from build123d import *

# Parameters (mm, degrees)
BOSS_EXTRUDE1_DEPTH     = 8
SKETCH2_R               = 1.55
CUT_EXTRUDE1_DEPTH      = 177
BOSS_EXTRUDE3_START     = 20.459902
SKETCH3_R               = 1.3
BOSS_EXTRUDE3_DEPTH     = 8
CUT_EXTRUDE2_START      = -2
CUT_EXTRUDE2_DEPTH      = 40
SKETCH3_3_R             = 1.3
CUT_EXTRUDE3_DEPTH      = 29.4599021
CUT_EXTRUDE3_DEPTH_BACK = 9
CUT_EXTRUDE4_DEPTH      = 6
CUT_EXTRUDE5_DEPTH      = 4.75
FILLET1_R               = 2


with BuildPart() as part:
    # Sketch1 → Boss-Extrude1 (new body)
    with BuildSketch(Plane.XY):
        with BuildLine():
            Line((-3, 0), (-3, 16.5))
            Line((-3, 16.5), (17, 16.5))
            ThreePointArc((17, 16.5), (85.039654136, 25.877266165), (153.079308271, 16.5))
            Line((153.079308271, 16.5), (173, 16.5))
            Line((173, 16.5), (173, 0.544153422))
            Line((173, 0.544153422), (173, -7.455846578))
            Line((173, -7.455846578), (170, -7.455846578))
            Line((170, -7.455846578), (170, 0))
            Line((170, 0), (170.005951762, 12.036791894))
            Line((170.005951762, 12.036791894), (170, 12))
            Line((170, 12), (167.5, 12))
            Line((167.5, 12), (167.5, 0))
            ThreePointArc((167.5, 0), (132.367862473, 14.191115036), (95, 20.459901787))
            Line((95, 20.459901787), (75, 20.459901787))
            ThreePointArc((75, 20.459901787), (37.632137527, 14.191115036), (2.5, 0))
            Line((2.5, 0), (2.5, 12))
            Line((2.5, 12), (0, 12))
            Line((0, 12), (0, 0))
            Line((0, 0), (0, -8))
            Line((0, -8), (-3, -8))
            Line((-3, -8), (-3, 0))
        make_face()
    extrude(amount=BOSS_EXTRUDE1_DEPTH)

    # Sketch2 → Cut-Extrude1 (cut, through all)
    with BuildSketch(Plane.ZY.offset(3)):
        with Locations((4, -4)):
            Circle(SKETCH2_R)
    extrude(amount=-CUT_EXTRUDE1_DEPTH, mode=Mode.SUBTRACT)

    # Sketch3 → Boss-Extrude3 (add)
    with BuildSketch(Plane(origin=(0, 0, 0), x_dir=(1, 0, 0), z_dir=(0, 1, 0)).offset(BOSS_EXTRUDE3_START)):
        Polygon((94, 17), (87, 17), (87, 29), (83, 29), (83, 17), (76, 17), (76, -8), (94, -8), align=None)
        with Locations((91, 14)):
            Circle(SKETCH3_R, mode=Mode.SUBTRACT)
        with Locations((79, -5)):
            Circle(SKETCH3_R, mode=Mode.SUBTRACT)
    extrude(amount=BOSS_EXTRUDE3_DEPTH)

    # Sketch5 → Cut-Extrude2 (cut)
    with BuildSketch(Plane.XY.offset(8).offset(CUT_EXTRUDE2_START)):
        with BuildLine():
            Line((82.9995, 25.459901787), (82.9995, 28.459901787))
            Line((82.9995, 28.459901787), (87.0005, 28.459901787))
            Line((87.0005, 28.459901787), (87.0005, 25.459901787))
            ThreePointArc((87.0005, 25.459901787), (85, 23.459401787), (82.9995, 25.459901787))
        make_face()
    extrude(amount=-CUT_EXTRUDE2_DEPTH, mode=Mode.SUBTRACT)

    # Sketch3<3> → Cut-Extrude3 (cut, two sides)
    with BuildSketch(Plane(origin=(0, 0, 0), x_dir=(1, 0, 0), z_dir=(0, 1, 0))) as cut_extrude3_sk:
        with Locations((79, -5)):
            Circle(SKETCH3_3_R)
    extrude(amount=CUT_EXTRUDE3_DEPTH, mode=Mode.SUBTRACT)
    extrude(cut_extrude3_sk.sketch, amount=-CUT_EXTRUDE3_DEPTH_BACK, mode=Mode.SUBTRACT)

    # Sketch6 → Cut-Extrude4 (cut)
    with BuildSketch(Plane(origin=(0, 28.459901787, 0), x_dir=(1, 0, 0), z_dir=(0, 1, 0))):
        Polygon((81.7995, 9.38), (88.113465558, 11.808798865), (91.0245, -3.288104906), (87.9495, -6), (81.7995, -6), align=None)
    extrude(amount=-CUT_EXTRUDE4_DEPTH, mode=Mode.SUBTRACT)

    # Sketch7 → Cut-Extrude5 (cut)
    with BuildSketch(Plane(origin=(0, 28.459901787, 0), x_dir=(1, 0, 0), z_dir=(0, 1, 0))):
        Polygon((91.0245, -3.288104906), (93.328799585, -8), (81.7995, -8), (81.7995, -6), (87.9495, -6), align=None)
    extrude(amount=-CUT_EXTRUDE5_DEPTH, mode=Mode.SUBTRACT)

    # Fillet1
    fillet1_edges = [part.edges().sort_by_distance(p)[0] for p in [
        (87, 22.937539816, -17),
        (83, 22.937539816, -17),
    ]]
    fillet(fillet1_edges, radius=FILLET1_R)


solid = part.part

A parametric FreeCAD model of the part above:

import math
import FreeCAD as App
import Part
import Sketcher

V = App.Vector
Q = App.Units.Quantity


def edges_at(feature, points):
    """Names of the edges that pass closest to the given points."""
    edges = feature.Shape.Edges
    near = lambda p: min(range(len(edges)), key=lambda i: edges[i].distToShape(Part.Vertex(*p))[0])
    return sorted({f"Edge{near(p) + 1}" for p in points})


def add_polygon(sketch, points):
    """Adds a closed chain of lines whose ends are joined by coincident constraints."""
    first, n = sketch.GeometryCount, len(points)
    for a, b in zip(points, points[1:] + points[:1]):
        sketch.addGeometry(Part.LineSegment(App.Vector(*a, 0), App.Vector(*b, 0)), False)
    for i in range(n):
        sketch.addConstraint(Sketcher.Constraint("Coincident", first + i, 2, first + (i + 1) % n, 1))

doc = App.newDocument("Part")
params = doc.addObject("Spreadsheet::Sheet", "Params")
for row, (alias, value) in enumerate([
    ("sketch1_width", "20 mm"),
    ("sketch1_width2", "3 mm"),
    ("sketch1_height", "12 mm"),
    ("sketch1_width3", "2.5 mm"),
    ("sketch1_height2", "24.5 mm"),
    ("pad1_length", "8 mm"),
    ("sketch2_diameter", "3.1 mm"),
    ("sketch3_diameter", "2.6 mm"),
    ("sketch3_width", "7 mm"),
    ("sketch3_width2", "4 mm"),
    ("sketch3_height", "12 mm"),
    ("sketch3_height2", "25 mm"),
    ("pad2_length", "8 mm"),
    ("sketch4_height", "3 mm"),
    ("pocket2_length", "40 mm"),
    ("sketch5_diameter", "2.6 mm"),
    ("sketch6_length", "4.1 mm"),
    ("sketch6_width", "6.15 mm"),
    ("sketch6_height", "15.38 mm"),
    ("pocket4_length", "6 mm"),
    ("sketch7_height", "2 mm"),
    ("sketch7_length", "4.1 mm"),
    ("sketch7_width", "6.15 mm"),
    ("pocket5_length", "4.75 mm"),
    ("fillet_radius", "2 mm"),
], start=1):
    params.set(f"A{row}", alias)
    params.set(f"B{row}", "=" + value)
    params.setAlias(f"B{row}", alias)

body = doc.addObject("PartDesign::Body", "Body")

# Sketch on XY plane
sketch1 = body.newObject("Sketcher::SketchObject", "Sketch")
sketch1.AttachmentSupport = (doc.getObject("XY_Plane"), [""])
sketch1.MapMode = "FlatFace"
sketch1.addGeometry([
    Part.LineSegment(V(17, 16.5, 0), V(-3, 16.5, 0)),  # 0
    Part.LineSegment(V(-3, 16.5, 0), V(-3, -8, 0)),  # 1
    Part.LineSegment(V(-3, -8, 0), V(0, -8, 0)),  # 2
    Part.LineSegment(V(0, -8, 0), V(0, 12, 0)),  # 3
    Part.LineSegment(V(0, 12, 0), V(2.5, 12, 0)),  # 4
    Part.LineSegment(V(2.5, 12, 0), V(2.5, 0, 0)),  # 5
    Part.ArcOfCircle(Part.Circle(V(85, -153.658, 0), V(0, 0, 1), 174.405), math.radians(93), math.radians(118)),  # 6
    Part.LineSegment(V(75, 20.46, 0), V(95, 20.46, 0)),  # 7
    Part.ArcOfCircle(Part.Circle(V(85, -153.658, 0), V(0, 0, 1), 174.405), math.radians(62), math.radians(87)),  # 8
    Part.LineSegment(V(167.5, 0, 0), V(167.5, 12, 0)),  # 9
    Part.LineSegment(V(167.5, 12, 0), V(170, 12, 0)),  # 10
    Part.LineSegment(V(170, 12, 0), V(170.006, 12.037, 0)),  # 11
    Part.LineSegment(V(170.006, 12.037, 0), V(170, 0, 0)),  # 12
    Part.LineSegment(V(170, 0, 0), V(170, -7.456, 0)),  # 13
    Part.LineSegment(V(170, -7.456, 0), V(173, -7.456, 0)),  # 14
    Part.LineSegment(V(173, -7.456, 0), V(173, 16.5, 0)),  # 15
    Part.LineSegment(V(173, 16.5, 0), V(153.079, 16.5, 0)),  # 16
    Part.ArcOfCircle(Part.Circle(V(85.04, -225.653, 0), V(0, 0, 1), 251.53), math.radians(74), math.radians(106)),  # 17
], False)
sketch1.addConstraint([
    Sketcher.Constraint("Coincident", 0, 2, 1, 1),
    Sketcher.Constraint("Coincident", 1, 2, 2, 1),
    Sketcher.Constraint("Coincident", 2, 2, 3, 1),
    Sketcher.Constraint("Coincident", 3, 2, 4, 1),
    Sketcher.Constraint("Coincident", 4, 2, 5, 1),
    Sketcher.Constraint("Coincident", 5, 2, 6, 2),
    Sketcher.Constraint("Coincident", 6, 1, 7, 1),
    Sketcher.Constraint("Coincident", 7, 2, 8, 2),
    Sketcher.Constraint("Coincident", 8, 1, 9, 1),
    Sketcher.Constraint("Coincident", 9, 2, 10, 1),
    Sketcher.Constraint("Coincident", 10, 2, 11, 1),
    Sketcher.Constraint("Coincident", 11, 2, 12, 1),
    Sketcher.Constraint("Coincident", 12, 2, 13, 1),
    Sketcher.Constraint("Coincident", 13, 2, 14, 1),
    Sketcher.Constraint("Coincident", 14, 2, 15, 1),
    Sketcher.Constraint("Coincident", 15, 2, 16, 1),
    Sketcher.Constraint("Coincident", 16, 2, 17, 1),
    Sketcher.Constraint("Coincident", 17, 2, 0, 1),
    Sketcher.Constraint("Horizontal", 0),
    Sketcher.Constraint("Vertical", 1),
    Sketcher.Constraint("Horizontal", 2),
    Sketcher.Constraint("Vertical", 3),
    Sketcher.Constraint("Horizontal", 4),
    Sketcher.Constraint("Vertical", 5),
    Sketcher.Constraint("Horizontal", 7),
    Sketcher.Constraint("Vertical", 9),
    Sketcher.Constraint("Horizontal", 10),
    Sketcher.Constraint("Vertical", 13),
    Sketcher.Constraint("Horizontal", 14),
    Sketcher.Constraint("Vertical", 15),
    Sketcher.Constraint("Horizontal", 16),
    Sketcher.Constraint("Coincident", 8, 3, 6, 3),
    Sketcher.Constraint("Equal", 6, 8),
    Sketcher.Constraint("PointOnObject", 2, 2, -2),
    Sketcher.Constraint("PointOnObject", 5, 2, -1),
    Sketcher.Constraint("PointOnObject", 8, 1, -1),
    Sketcher.Constraint("PointOnObject", 12, 2, -1),
    Sketcher.Constraint("Horizontal", 4, 2, 9, 2),
    Sketcher.Constraint("Horizontal", 0, 2, 15, 2),
    Sketcher.Constraint("Vertical", 10, 2, 12, 2),
    Sketcher.Constraint("Equal", 0, 7),
    Sketcher.Constraint("Equal", 4, 10),
    Sketcher.Constraint("Equal", 2, 14),
    Sketcher.Constraint("Equal", 7, 3),
    Sketcher.Constraint("DistanceX", 0, 2, 0, 1, Q("20 mm")),
    Sketcher.Constraint("DistanceX", 2, 1, 2, 2, Q("3 mm")),
    Sketcher.Constraint("DistanceY", 5, 2, 5, 1, Q("12 mm")),
    Sketcher.Constraint("DistanceX", 4, 1, 4, 2, Q("2.5 mm")),
    Sketcher.Constraint("DistanceY", 1, 2, 1, 1, Q("24.5 mm")),
    Sketcher.Constraint("DistanceX", -1, 1, 6, 3, Q("85 mm")),
    Sketcher.Constraint("Radius", 6, Q("174.404516 mm")),
    Sketcher.Constraint("Radius", 17, Q("251.530007 mm")),
    Sketcher.Constraint("DistanceX", 16, 2, 16, 1, Q("19.920692 mm")),
    Sketcher.Constraint("Distance", 11, Q("0.03727 mm")),
    Sketcher.Constraint("DistanceY", 13, 2, 13, 1, Q("7.455847 mm")),
    Sketcher.Constraint("DistanceX", -1, 1, 11, 2, Q("170.005952 mm")),
])
sketch1.setExpression("Constraints[44]", "Params.sketch1_width")
sketch1.setExpression("Constraints[45]", "Params.sketch1_width2")
sketch1.setExpression("Constraints[46]", "Params.sketch1_height")
sketch1.setExpression("Constraints[47]", "Params.sketch1_width3")
sketch1.setExpression("Constraints[48]", "Params.sketch1_height2")
pad1 = body.newObject("PartDesign::Pad", "Pad")
pad1.Profile = sketch1
pad1.setExpression("Length", "Params.pad1_length")

# Sketch on YZ plane
sketch2 = body.newObject("Sketcher::SketchObject", "Sketch001")
sketch2.AttachmentSupport = (doc.getObject("YZ_Plane"), [""])
sketch2.MapMode = "FlatFace"
sketch2.AttachmentOffset = App.Placement(V(0, 0, -3), App.Rotation())
sketch2.addGeometry(Part.Circle(V(-4, 4, 0), V(0, 0, 1), 1.6), False)
sketch2.addConstraint([
    Sketcher.Constraint("Diameter", 0, Q("3.1 mm")),
    Sketcher.Constraint("DistanceX", 0, 3, -1, 1, Q("4 mm")),
    Sketcher.Constraint("DistanceY", -1, 1, 0, 3, Q("4 mm")),
])
sketch2.setExpression("Constraints[0]", "Params.sketch2_diameter")
pocket1 = body.newObject("PartDesign::Pocket", "Pocket")
pocket1.Profile = sketch2
pocket1.Type = "ThroughAll"
pocket1.Reversed = True

# Sketch on XZ plane
sketch3 = body.newObject("Sketcher::SketchObject", "Sketch002")
sketch3.AttachmentSupport = (doc.getObject("XZ_Plane"), [""])
sketch3.MapMode = "FlatFace"
sketch3.AttachmentOffset = App.Placement(V(0, 0, -20.459902), App.Rotation())
add_polygon(sketch3, [(94, -17), (87, -17), (87, -29), (83, -29), (83, -17), (76, -17), (76, 8), (94, 8)])  # lines 0-7
sketch3.addGeometry(Part.Circle(V(79, 5, 0), V(0, 0, 1), 1.3), False)  # 8
sketch3.addGeometry(Part.Circle(V(91, -14, 0), V(0, 0, 1), 1.3), False)  # 9
sketch3.addConstraint([
    Sketcher.Constraint("Horizontal", 0),
    Sketcher.Constraint("Vertical", 1),
    Sketcher.Constraint("Horizontal", 2),
    Sketcher.Constraint("Vertical", 3),
    Sketcher.Constraint("Horizontal", 4),
    Sketcher.Constraint("Vertical", 5),
    Sketcher.Constraint("Horizontal", 6),
    Sketcher.Constraint("Vertical", 7),
    Sketcher.Constraint("Equal", 8, 9),
    Sketcher.Constraint("Horizontal", 0, 2, 3, 2),
    Sketcher.Constraint("Equal", 0, 4),
    Sketcher.Constraint("Diameter", 8, Q("2.6 mm")),
    Sketcher.Constraint("DistanceX", 0, 2, 0, 1, Q("7 mm")),
    Sketcher.Constraint("DistanceX", 2, 2, 2, 1, Q("4 mm")),
    Sketcher.Constraint("DistanceY", 1, 2, 1, 1, Q("12 mm")),
    Sketcher.Constraint("DistanceY", 5, 1, 5, 2, Q("25 mm")),
    Sketcher.Constraint("DistanceX", -1, 1, 8, 3, Q("79 mm")),
    Sketcher.Constraint("DistanceY", -1, 1, 8, 3, Q("5 mm")),
    Sketcher.Constraint("DistanceX", -1, 1, 9, 3, Q("91 mm")),
    Sketcher.Constraint("DistanceY", 9, 3, -1, 1, Q("14 mm")),
    Sketcher.Constraint("DistanceX", -1, 1, 0, 2, Q("87 mm")),
    Sketcher.Constraint("DistanceY", 0, 2, -1, 1, Q("17 mm")),
])
sketch3.setExpression("Constraints[19]", "Params.sketch3_diameter")
sketch3.setExpression("Constraints[20]", "Params.sketch3_width")
sketch3.setExpression("Constraints[21]", "Params.sketch3_width2")
sketch3.setExpression("Constraints[22]", "Params.sketch3_height")
sketch3.setExpression("Constraints[23]", "Params.sketch3_height2")
pad2 = body.newObject("PartDesign::Pad", "Pad001")
pad2.Profile = sketch3
pad2.setExpression("Length", "Params.pad2_length")
pad2.Reversed = True

# Sketch on XY plane
sketch4 = body.newObject("Sketcher::SketchObject", "Sketch003")
sketch4.AttachmentSupport = (doc.getObject("XY_Plane"), [""])
sketch4.MapMode = "FlatFace"
sketch4.AttachmentOffset = App.Placement(V(0, 0, 6), App.Rotation())
sketch4.addGeometry([
    Part.LineSegment(V(83, 28.5, 0), V(83, 25.5, 0)),
    Part.ArcOfCircle(Part.Circle(V(85, 25.5, 0), V(0, 0, 1), 2), math.radians(180), math.radians(360)),
    Part.LineSegment(V(87, 25.5, 0), V(87, 28.5, 0)),
    Part.LineSegment(V(87, 28.5, 0), V(83, 28.5, 0)),
], False)
sketch4.addConstraint([
    Sketcher.Constraint("Tangent", 0, 2, 1, 1),
    Sketcher.Constraint("Tangent", 1, 2, 2, 1),
    Sketcher.Constraint("Coincident", 2, 2, 3, 1),
    Sketcher.Constraint("Coincident", 3, 2, 0, 1),
    Sketcher.Constraint("Vertical", 0),
    Sketcher.Constraint("Vertical", 2),
    Sketcher.Constraint("Horizontal", 3),
    Sketcher.Constraint("DistanceY", 0, 2, 0, 1, Q("3 mm")),
    Sketcher.Constraint("DistanceX", -1, 1, 1, 3, Q("85 mm")),
    Sketcher.Constraint("Radius", 1, Q("2.0005 mm")),
    Sketcher.Constraint("DistanceY", -1, 1, 1, 3, Q("25.459902 mm")),
])
sketch4.setExpression("Constraints[7]", "Params.sketch4_height")
pocket2 = body.newObject("PartDesign::Pocket", "Pocket001")
pocket2.Profile = sketch4
pocket2.setExpression("Length", "Params.pocket2_length")

# Sketch on XZ plane
sketch5 = body.newObject("Sketcher::SketchObject", "Sketch004")
sketch5.AttachmentSupport = (doc.getObject("XZ_Plane"), [""])
sketch5.MapMode = "FlatFace"
sketch5.addGeometry(Part.Circle(V(79, 5, 0), V(0, 0, 1), 1.3), False)
sketch5.addConstraint([
    Sketcher.Constraint("Diameter", 0, Q("2.6 mm")),
    Sketcher.Constraint("DistanceX", -1, 1, 0, 3, Q("79 mm")),
    Sketcher.Constraint("DistanceY", -1, 1, 0, 3, Q("5 mm")),
])
sketch5.setExpression("Constraints[0]", "Params.sketch5_diameter")
pocket3 = body.newObject("PartDesign::Pocket", "Pocket002")
pocket3.Profile = sketch5
pocket3.Type = "ThroughAll"
pocket3.Midplane = True

# Sketch on XZ plane
sketch6 = body.newObject("Sketcher::SketchObject", "Sketch005")
sketch6.AttachmentSupport = (doc.getObject("XZ_Plane"), [""])
sketch6.MapMode = "FlatFace"
sketch6.AttachmentOffset = App.Placement(V(0, 0, -28.459902), App.Rotation())
add_polygon(sketch6, [(88.1, -11.8), (81.8, -9.4), (81.8, 6), (87.9, 6), (91, 3.3)])  # lines 0-4
sketch6.addConstraint([
    Sketcher.Constraint("Vertical", 1),
    Sketcher.Constraint("Horizontal", 2),
    Sketcher.Constraint("DistanceY", -1, 1, 1, 2, Q("6 mm")),
    Sketcher.Constraint("Distance", 3, Q("4.1 mm")),
    Sketcher.Constraint("DistanceX", 2, 1, 2, 2, Q("6.15 mm")),
    Sketcher.Constraint("DistanceY", 1, 1, 1, 2, Q("15.38 mm")),
    Sketcher.Constraint("Distance", 0, Q("6.765 mm")),
    Sketcher.Constraint("Distance", 4, Q("15.375 mm")),
    Sketcher.Constraint("DistanceX", 2, 2, 3, 2, Q("3.075 mm")),
    Sketcher.Constraint("DistanceX", -1, 1, 0, 2, Q("81.7995 mm")),
])
sketch6.setExpression("Constraints[8]", "Params.sketch6_length")
sketch6.setExpression("Constraints[9]", "Params.sketch6_width")
sketch6.setExpression("Constraints[10]", "Params.sketch6_height")
pocket4 = body.newObject("PartDesign::Pocket", "Pocket003")
pocket4.Profile = sketch6
pocket4.setExpression("Length", "Params.pocket4_length")
pocket4.Reversed = True

# Sketch on XZ plane
sketch7 = body.newObject("Sketcher::SketchObject", "Sketch006")
sketch7.AttachmentSupport = (doc.getObject("XZ_Plane"), [""])
sketch7.MapMode = "FlatFace"
sketch7.AttachmentOffset = App.Placement(V(0, 0, -28.459902), App.Rotation())
add_polygon(sketch7, [(93.3, 8), (91, 3.3), (87.9, 6), (81.8, 6), (81.8, 8)])  # lines 0-4
sketch7.addConstraint([
    Sketcher.Constraint("Horizontal", 2),
    Sketcher.Constraint("Vertical", 3),
    Sketcher.Constraint("Horizontal", 4),
    Sketcher.Constraint("DistanceY", 3, 1, 3, 2, Q("2 mm")),
    Sketcher.Constraint("DistanceY", -1, 1, 1, 2, Q("6 mm")),
    Sketcher.Constraint("Distance", 1, Q("4.1 mm")),
    Sketcher.Constraint("DistanceX", 2, 2, 2, 1, Q("6.15 mm")),
    Sketcher.Constraint("DistanceX", 4, 1, 4, 2, Q("11.5293 mm")),
    Sketcher.Constraint("DistanceX", 1, 2, 0, 2, Q("3.075 mm")),
    Sketcher.Constraint("DistanceX", -1, 1, 0, 2, Q("91.0245 mm")),
])
sketch7.setExpression("Constraints[8]", "Params.sketch7_height")
sketch7.setExpression("Constraints[10]", "Params.sketch7_length")
sketch7.setExpression("Constraints[11]", "Params.sketch7_width")
pocket5 = body.newObject("PartDesign::Pocket", "Pocket004")
pocket5.Profile = sketch7
pocket5.setExpression("Length", "Params.pocket5_length")
pocket5.Reversed = True
doc.recompute()

fillet = body.newObject("PartDesign::Fillet", "Fillet")
fillet.Base = (pocket5, edges_at(pocket5, [(87, 22.938, -17), (83, 22.938, -17)]))
fillet.setExpression("Radius", "Params.fillet_radius")

doc.recompute()
